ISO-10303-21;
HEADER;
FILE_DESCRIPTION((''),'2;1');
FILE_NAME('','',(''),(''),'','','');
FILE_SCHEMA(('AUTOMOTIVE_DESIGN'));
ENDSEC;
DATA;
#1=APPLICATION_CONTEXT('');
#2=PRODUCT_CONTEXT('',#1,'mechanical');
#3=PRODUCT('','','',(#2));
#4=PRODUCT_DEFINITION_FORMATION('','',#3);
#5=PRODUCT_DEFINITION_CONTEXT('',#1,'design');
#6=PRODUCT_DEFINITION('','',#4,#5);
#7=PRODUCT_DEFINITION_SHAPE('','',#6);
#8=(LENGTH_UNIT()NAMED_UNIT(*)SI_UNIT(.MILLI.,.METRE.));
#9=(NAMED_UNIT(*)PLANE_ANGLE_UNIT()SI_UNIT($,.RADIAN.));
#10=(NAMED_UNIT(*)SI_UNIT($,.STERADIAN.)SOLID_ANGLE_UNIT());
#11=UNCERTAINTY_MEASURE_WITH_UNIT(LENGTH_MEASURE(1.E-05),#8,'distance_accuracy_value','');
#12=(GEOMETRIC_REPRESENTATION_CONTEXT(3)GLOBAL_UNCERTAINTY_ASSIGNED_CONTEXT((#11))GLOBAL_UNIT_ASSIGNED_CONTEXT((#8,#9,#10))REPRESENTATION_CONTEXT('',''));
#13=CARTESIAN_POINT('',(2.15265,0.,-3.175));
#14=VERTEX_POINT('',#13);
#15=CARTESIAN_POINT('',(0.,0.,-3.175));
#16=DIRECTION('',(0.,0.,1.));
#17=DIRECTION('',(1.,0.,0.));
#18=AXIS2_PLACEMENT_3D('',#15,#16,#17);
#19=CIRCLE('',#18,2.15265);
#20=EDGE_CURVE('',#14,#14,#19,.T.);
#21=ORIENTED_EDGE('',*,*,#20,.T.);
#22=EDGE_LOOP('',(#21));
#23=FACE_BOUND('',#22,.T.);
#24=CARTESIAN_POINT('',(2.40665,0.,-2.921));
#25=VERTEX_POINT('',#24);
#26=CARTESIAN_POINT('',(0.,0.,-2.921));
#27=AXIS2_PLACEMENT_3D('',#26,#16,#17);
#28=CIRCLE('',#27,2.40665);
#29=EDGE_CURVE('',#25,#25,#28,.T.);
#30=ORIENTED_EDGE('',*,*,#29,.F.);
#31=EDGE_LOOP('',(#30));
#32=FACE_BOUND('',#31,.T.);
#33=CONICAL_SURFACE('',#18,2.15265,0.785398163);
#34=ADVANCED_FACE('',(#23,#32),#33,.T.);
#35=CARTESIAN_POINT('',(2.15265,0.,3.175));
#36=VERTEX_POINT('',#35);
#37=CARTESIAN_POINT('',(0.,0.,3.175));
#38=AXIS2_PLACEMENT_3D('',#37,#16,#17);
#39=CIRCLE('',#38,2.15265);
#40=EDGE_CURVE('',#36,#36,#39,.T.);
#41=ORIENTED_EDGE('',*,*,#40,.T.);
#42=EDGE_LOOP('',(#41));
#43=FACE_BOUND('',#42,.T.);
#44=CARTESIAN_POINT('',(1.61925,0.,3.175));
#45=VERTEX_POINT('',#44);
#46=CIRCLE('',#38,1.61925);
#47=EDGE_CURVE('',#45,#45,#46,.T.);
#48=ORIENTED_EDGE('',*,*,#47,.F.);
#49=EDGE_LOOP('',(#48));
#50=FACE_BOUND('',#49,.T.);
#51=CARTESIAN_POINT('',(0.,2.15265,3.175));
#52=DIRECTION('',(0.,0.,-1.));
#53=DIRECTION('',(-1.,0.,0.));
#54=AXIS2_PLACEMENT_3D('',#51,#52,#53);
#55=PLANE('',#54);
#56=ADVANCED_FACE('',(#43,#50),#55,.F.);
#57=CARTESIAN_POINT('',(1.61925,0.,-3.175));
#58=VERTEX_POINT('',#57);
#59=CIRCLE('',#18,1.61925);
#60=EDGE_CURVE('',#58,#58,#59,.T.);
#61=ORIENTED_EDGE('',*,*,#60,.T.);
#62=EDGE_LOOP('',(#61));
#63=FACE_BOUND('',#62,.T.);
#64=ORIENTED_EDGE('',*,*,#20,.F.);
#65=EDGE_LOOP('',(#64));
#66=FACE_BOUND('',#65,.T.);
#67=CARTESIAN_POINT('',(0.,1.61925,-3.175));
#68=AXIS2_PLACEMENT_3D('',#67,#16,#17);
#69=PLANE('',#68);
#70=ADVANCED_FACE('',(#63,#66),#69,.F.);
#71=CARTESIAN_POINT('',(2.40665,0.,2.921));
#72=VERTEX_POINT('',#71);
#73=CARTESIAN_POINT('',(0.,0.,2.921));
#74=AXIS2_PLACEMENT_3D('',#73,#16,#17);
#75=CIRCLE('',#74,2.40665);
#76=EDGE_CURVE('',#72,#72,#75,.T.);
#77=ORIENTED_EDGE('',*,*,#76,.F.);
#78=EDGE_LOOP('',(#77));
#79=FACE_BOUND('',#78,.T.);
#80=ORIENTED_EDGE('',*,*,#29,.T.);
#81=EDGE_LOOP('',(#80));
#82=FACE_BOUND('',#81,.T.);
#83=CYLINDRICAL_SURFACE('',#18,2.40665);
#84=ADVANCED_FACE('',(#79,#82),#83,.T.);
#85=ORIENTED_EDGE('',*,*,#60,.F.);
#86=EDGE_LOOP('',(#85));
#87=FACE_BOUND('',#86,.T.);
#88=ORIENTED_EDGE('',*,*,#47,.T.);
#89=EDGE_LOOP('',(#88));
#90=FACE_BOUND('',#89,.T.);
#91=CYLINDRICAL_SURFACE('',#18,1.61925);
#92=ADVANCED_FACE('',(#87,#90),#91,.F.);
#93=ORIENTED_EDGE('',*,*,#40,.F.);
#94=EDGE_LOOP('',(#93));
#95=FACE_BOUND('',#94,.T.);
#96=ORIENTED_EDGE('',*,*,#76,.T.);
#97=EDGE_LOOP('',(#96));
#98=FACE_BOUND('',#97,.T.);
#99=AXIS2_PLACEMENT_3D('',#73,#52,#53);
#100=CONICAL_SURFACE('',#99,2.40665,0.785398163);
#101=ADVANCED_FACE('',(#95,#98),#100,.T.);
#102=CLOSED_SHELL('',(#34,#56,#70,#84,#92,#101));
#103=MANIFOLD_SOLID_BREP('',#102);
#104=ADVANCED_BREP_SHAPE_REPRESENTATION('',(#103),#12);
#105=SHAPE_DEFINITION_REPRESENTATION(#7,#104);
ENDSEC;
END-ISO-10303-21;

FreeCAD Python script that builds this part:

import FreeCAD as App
import Part
import Sketcher
from FreeCAD import Vector
Q = App.Units.Quantity


def add_polygon(sketch, points):
    """Adds a closed chain of lines whose ends are joined by coincident constraints."""
    first, n = sketch.GeometryCount, len(points)
    for a, b in zip(points, points[1:] + points[:1]):
        sketch.addGeometry(Part.LineSegment(App.Vector(*a, 0), App.Vector(*b, 0)), False)
    for i in range(n):
        sketch.addConstraint(Sketcher.Constraint("Coincident", first + i, 2, first + (i + 1) % n, 1))

doc = App.newDocument("Part")
body = doc.addObject("PartDesign::Body", "Body")

# Sketch on YZ plane
sketch1 = body.newObject("Sketcher::SketchObject", "Sketch")
sketch1.AttachmentSupport = (doc.getObject("YZ_Plane"), [""])
sketch1.MapMode = "FlatFace"
add_polygon(sketch1, [(2.15265, 3.175), (1.61925, 3.175), (1.61925, -3.175), (2.15265, -3.175), (2.40665, -2.921), (2.40665, 2.921)])  # lines 0-5
sketch1.addConstraint(Sketcher.Constraint("Horizontal", 0))
sketch1.addConstraint(Sketcher.Constraint("Vertical", 1))
sketch1.addConstraint(Sketcher.Constraint("Horizontal", 2))
sketch1.addConstraint(Sketcher.Constraint("Vertical", 4))
sketch1.addConstraint(Sketcher.Constraint("Symmetric", 2, 2, 5, 2, -1))
sketch1.addConstraint(Sketcher.Constraint("Perpendicular", 3, 5))
sketch1.addConstraint(Sketcher.Constraint("Equal", 3, 5))
sketch1.addConstraint(Sketcher.Constraint("DistanceY", 1, 2, 1, 1, Q("0.25 in")))
sketch1.addConstraint(Sketcher.Constraint("DistanceY", 4, 1, 4, 2, Q("0.23 in")))
sketch1.addConstraint(Sketcher.Constraint("DistanceX", 0, 2, 0, 1, Q("0.021 in")))
sketch1.addConstraint(Sketcher.Constraint("DistanceX", -1, 1, 0, 2, Q("1.61925 mm")))
revolution = body.newObject("PartDesign::Revolution", "Revolution")
revolution.Profile = sketch1
revolution.ReferenceAxis = (sketch1, ["V_Axis"])
revolution.Angle = 360

doc.recompute()
